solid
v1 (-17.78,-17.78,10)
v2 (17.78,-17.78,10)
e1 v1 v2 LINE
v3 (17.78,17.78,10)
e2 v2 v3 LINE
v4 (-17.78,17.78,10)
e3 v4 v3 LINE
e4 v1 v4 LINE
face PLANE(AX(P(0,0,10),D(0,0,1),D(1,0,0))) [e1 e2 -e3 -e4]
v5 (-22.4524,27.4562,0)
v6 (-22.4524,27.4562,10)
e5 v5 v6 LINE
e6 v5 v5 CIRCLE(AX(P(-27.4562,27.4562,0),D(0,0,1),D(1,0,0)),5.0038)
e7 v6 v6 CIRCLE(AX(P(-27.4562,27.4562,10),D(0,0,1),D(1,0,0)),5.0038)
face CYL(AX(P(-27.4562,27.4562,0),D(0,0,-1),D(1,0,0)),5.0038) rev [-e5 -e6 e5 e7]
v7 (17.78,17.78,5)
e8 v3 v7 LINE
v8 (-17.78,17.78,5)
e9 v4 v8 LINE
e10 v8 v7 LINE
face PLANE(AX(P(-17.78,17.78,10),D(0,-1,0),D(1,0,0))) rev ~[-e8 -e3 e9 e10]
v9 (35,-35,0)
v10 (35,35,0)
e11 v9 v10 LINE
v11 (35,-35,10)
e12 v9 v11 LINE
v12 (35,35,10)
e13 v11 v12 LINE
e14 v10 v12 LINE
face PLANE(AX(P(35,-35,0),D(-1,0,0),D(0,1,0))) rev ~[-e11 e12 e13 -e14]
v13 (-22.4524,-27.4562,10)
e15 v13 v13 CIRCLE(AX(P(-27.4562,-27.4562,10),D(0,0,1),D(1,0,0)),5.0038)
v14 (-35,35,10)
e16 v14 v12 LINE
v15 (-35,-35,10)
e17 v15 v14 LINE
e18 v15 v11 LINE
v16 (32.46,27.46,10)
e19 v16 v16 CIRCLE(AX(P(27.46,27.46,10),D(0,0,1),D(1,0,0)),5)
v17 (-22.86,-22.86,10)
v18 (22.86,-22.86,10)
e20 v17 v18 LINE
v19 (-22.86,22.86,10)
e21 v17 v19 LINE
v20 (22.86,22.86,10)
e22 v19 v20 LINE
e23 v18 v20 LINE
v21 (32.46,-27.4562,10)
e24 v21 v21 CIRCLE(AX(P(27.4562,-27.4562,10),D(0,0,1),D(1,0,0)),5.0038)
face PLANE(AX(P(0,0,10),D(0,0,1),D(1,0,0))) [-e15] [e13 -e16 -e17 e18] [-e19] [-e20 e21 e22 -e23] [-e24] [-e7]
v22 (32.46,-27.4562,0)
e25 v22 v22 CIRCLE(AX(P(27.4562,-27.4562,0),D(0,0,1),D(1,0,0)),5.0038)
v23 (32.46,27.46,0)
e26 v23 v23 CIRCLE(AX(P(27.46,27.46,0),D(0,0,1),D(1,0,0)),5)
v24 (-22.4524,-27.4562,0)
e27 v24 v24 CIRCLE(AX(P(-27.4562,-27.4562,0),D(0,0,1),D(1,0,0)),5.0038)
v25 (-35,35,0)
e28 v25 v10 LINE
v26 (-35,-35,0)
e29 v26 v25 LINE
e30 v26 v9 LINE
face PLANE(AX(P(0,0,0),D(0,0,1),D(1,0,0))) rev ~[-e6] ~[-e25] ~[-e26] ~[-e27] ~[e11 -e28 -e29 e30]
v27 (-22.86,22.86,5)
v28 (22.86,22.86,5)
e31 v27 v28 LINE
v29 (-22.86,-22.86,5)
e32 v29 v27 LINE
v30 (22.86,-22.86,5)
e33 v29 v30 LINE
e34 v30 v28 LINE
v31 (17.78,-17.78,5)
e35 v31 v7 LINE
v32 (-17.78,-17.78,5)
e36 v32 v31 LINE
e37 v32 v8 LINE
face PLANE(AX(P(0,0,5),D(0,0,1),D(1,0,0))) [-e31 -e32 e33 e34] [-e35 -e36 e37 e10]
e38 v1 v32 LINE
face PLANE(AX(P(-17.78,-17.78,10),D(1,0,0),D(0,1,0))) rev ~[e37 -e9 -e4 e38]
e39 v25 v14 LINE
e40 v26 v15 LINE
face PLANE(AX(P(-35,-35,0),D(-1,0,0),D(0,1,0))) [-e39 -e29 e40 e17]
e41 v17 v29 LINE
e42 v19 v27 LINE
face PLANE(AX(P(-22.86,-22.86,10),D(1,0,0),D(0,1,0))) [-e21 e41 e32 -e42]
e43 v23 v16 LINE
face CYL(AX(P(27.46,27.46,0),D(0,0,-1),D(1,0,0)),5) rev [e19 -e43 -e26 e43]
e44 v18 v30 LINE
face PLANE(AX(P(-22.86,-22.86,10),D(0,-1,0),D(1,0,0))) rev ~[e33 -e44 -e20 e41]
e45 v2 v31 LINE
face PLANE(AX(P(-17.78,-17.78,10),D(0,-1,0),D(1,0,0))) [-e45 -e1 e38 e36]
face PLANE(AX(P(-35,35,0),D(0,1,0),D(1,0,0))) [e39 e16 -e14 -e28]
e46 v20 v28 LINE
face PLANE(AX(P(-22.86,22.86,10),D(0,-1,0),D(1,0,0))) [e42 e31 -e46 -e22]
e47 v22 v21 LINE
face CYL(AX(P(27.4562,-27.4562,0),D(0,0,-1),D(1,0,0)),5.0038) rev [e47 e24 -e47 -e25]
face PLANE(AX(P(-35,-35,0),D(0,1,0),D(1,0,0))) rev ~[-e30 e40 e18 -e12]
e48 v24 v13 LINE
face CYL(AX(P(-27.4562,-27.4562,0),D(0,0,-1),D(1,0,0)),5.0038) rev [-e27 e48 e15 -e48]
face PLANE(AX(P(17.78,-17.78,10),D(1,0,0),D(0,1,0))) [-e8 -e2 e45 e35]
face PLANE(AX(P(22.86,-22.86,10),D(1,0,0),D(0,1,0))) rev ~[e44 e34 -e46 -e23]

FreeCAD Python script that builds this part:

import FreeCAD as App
import Part
import Sketcher
from FreeCAD import Vector


def add_polygon(sketch, points):
    """Adds a closed chain of lines whose ends are joined by coincident constraints."""
    first, n = sketch.GeometryCount, len(points)
    for a, b in zip(points, points[1:] + points[:1]):
        sketch.addGeometry(Part.LineSegment(App.Vector(*a, 0), App.Vector(*b, 0)), False)
    for i in range(n):
        sketch.addConstraint(Sketcher.Constraint("Coincident", first + i, 2, first + (i + 1) % n, 1))

doc = App.newDocument("Part")
body = doc.addObject("PartDesign::Body", "Body")

sketch1 = doc.addObject("Sketcher::SketchObject", "Sketch")
body.addObject(sketch1)
sketch1.AttachmentSupport = (doc.XY_Plane, [""])
sketch1.MapMode = "FlatFace"
add_polygon(sketch1, [(-35, 35), (-35, -35), (35, -35), (35, 35)])
sketch1.addGeometry(Part.Circle(Vector(-27, -27, 0), Vector(0, 0, 1), 5), False)
sketch1.addGeometry(Part.Circle(Vector(27, -27, 0), Vector(0, 0, 1), 5), False)
sketch1.addGeometry(Part.Circle(Vector(-27, 27, 0), Vector(0, 0, 1), 5), False)
sketch1.addGeometry(Part.Circle(Vector(27, 27, 0), Vector(0, 0, 1), 5), False)
sketch1.addConstraint(Sketcher.Constraint("Vertical", 0))
sketch1.addConstraint(Sketcher.Constraint("Horizontal", 1))
sketch1.addConstraint(Sketcher.Constraint("Vertical", 2))
sketch1.addConstraint(Sketcher.Constraint("Horizontal", 3))
sketch1.addConstraint(Sketcher.Constraint("Equal", 4, 5))
sketch1.addConstraint(Sketcher.Constraint("Equal", 5, 6))
sketch1.addConstraint(Sketcher.Constraint("Symmetric", 5, 3, 6, 3, -1, 1))
sketch1.addConstraint(Sketcher.Constraint("Symmetric", 0, 2, 2, 2, -1, 1))
sketch1.addConstraint(Sketcher.Constraint("Symmetric", 4, 3, 5, 3, -2))
sketch1.addConstraint(Sketcher.Constraint("Equal", 3, 0))
sketch1.addConstraint(Sketcher.Constraint("Diameter", 7, 10.0))
sketch1.addConstraint(Sketcher.Constraint("DistanceX", 1, 1, 1, 2, 70.0))
sketch1.addConstraint(Sketcher.Constraint("Diameter", 4, 10.0076))
sketch1.addConstraint(Sketcher.Constraint("DistanceX", -1, 1, 7, 3, 27.46))
sketch1.addConstraint(Sketcher.Constraint("DistanceY", -1, 1, 7, 3, 27.46))
sketch1.addConstraint(Sketcher.Constraint("DistanceX", 4, 3, -1, 1, 27.4562))
sketch1.addConstraint(Sketcher.Constraint("DistanceY", 4, 3, -1, 1, 27.4562))
pad1 = doc.addObject("PartDesign::Pad", "Pad")
body.addObject(pad1)
pad1.Profile = sketch1
pad1.Length = 10

sketch2 = doc.addObject("Sketcher::SketchObject", "Sketch001")
body.addObject(sketch2)
sketch2.AttachmentSupport = (doc.XY_Plane, [""])
sketch2.MapMode = "FlatFace"
sketch2.AttachmentOffset = App.Placement(Vector(0, 0, 10), App.Rotation())
add_polygon(sketch2, [(-23, 23), (-23, -23), (23, -23), (23, 23)])
add_polygon(sketch2, [(18, -18), (-18, -18), (-18, 18), (18, 18)])
sketch2.addConstraint(Sketcher.Constraint("Vertical", 0))
sketch2.addConstraint(Sketcher.Constraint("Horizontal", 1))
sketch2.addConstraint(Sketcher.Constraint("Vertical", 2))
sketch2.addConstraint(Sketcher.Constraint("Horizontal", 3))
sketch2.addConstraint(Sketcher.Constraint("Horizontal", 4))
sketch2.addConstraint(Sketcher.Constraint("Vertical", 5))
sketch2.addConstraint(Sketcher.Constraint("Horizontal", 6))
sketch2.addConstraint(Sketcher.Constraint("Vertical", 7))
sketch2.addConstraint(Sketcher.Constraint("Symmetric", 0, 2, 2, 2, -1, 1))
sketch2.addConstraint(Sketcher.Constraint("Symmetric", 4, 2, 6, 2, -1, 1))
sketch2.addConstraint(Sketcher.Constraint("Equal", 3, 0))
sketch2.addConstraint(Sketcher.Constraint("Equal", 6, 5))
sketch2.addConstraint(Sketcher.Constraint("DistanceX", 1, 1, 1, 2, 45.72))
sketch2.addConstraint(Sketcher.Constraint("DistanceX", 4, 2, 4, 1, 35.56))
pocket1 = doc.addObject("PartDesign::Pocket", "Pocket")
body.addObject(pocket1)
pocket1.Profile = sketch2
pocket1.Length = 5

doc.recompute()
